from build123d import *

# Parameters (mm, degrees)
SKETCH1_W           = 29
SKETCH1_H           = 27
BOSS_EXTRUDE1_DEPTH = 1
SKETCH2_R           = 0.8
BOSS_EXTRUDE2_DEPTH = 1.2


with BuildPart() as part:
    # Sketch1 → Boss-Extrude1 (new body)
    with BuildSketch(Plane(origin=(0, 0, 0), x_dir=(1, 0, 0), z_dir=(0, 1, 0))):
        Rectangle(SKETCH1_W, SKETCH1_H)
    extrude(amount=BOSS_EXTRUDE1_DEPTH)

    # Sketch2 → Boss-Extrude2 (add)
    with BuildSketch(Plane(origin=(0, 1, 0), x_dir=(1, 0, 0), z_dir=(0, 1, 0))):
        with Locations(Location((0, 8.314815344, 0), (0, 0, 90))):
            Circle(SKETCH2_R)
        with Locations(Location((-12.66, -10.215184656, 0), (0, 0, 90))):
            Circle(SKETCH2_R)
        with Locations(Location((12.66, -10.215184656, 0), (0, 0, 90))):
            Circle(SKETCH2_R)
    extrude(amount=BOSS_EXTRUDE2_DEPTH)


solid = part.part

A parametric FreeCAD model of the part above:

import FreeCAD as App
import Part
import Sketcher
from FreeCAD import Vector


def add_polygon(sketch, points):
    """Adds a closed chain of lines whose ends are joined by coincident constraints."""
    first, n = sketch.GeometryCount, len(points)
    for a, b in zip(points, points[1:] + points[:1]):
        sketch.addGeometry(Part.LineSegment(App.Vector(*a, 0), App.Vector(*b, 0)), False)
    for i in range(n):
        sketch.addConstraint(Sketcher.Constraint("Coincident", first + i, 2, first + (i + 1) % n, 1))

doc = App.newDocument("Part")
body = doc.addObject("PartDesign::Body", "Body")

# Sketch on XZ plane
sketch1 = body.newObject("Sketcher::SketchObject", "Sketch")
sketch1.AttachmentSupport = (doc.getObject("XZ_Plane"), [""])
sketch1.MapMode = "FlatFace"
add_polygon(sketch1, [(-14, -14), (-14, 14), (14, 14), (14, -14)])  # lines 0-3
sketch1.addConstraint(Sketcher.Constraint("Vertical", 0))
sketch1.addConstraint(Sketcher.Constraint("Horizontal", 1))
sketch1.addConstraint(Sketcher.Constraint("Vertical", 2))
sketch1.addConstraint(Sketcher.Constraint("Horizontal", 3))
sketch1.addConstraint(Sketcher.Constraint("Symmetric", 0, 2, 2, 2, -1, 1))
sketch1.addConstraint(Sketcher.Constraint("DistanceX", 1, 1, 1, 2, 29.0))
sketch1.addConstraint(Sketcher.Constraint("DistanceY", 0, 1, 0, 2, 27.0))
pad1 = body.newObject("PartDesign::Pad", "Pad")
pad1.Profile = sketch1
pad1.Length = 1
pad1.Reversed = True

# Sketch on XZ plane
sketch2 = body.newObject("Sketcher::SketchObject", "Sketch001")
sketch2.AttachmentSupport = (doc.getObject("XZ_Plane"), [""])
sketch2.MapMode = "FlatFace"
sketch2.AttachmentOffset = App.Placement(Vector(0, 0, -1), App.Rotation())
sketch2.addGeometry(Part.Circle(Vector(0, -8.3, 0), Vector(0, 0, 1), 0.8), False)
sketch2.addGeometry(Part.Circle(Vector(-12.7, 10.2, 0), Vector(0, 0, 1), 0.8), False)
sketch2.addGeometry(Part.Circle(Vector(12.7, 10.2, 0), Vector(0, 0, 1), 0.8), False)
sketch2.addConstraint(Sketcher.Constraint("Equal", 0, 1))
sketch2.addConstraint(Sketcher.Constraint("Equal", 1, 2))
sketch2.addConstraint(Sketcher.Constraint("Symmetric", 1, 3, 2, 3, -2))
sketch2.addConstraint(Sketcher.Constraint("PointOnObject", 0, 3, -2))
sketch2.addConstraint(Sketcher.Constraint("Diameter", 0, 1.6))
sketch2.addConstraint(Sketcher.Constraint("DistanceX", 1, 3, -1, 1, 12.66))
sketch2.addConstraint(Sketcher.Constraint("DistanceY", 0, 3, 1, 3, 18.53))
sketch2.addConstraint(Sketcher.Constraint("DistanceY", 0, 3, -1, 1, 8.314815))
pad2 = body.newObject("PartDesign::Pad", "Pad001")
pad2.Profile = sketch2
pad2.Length = 1.2
pad2.Reversed = True

doc.recompute()
